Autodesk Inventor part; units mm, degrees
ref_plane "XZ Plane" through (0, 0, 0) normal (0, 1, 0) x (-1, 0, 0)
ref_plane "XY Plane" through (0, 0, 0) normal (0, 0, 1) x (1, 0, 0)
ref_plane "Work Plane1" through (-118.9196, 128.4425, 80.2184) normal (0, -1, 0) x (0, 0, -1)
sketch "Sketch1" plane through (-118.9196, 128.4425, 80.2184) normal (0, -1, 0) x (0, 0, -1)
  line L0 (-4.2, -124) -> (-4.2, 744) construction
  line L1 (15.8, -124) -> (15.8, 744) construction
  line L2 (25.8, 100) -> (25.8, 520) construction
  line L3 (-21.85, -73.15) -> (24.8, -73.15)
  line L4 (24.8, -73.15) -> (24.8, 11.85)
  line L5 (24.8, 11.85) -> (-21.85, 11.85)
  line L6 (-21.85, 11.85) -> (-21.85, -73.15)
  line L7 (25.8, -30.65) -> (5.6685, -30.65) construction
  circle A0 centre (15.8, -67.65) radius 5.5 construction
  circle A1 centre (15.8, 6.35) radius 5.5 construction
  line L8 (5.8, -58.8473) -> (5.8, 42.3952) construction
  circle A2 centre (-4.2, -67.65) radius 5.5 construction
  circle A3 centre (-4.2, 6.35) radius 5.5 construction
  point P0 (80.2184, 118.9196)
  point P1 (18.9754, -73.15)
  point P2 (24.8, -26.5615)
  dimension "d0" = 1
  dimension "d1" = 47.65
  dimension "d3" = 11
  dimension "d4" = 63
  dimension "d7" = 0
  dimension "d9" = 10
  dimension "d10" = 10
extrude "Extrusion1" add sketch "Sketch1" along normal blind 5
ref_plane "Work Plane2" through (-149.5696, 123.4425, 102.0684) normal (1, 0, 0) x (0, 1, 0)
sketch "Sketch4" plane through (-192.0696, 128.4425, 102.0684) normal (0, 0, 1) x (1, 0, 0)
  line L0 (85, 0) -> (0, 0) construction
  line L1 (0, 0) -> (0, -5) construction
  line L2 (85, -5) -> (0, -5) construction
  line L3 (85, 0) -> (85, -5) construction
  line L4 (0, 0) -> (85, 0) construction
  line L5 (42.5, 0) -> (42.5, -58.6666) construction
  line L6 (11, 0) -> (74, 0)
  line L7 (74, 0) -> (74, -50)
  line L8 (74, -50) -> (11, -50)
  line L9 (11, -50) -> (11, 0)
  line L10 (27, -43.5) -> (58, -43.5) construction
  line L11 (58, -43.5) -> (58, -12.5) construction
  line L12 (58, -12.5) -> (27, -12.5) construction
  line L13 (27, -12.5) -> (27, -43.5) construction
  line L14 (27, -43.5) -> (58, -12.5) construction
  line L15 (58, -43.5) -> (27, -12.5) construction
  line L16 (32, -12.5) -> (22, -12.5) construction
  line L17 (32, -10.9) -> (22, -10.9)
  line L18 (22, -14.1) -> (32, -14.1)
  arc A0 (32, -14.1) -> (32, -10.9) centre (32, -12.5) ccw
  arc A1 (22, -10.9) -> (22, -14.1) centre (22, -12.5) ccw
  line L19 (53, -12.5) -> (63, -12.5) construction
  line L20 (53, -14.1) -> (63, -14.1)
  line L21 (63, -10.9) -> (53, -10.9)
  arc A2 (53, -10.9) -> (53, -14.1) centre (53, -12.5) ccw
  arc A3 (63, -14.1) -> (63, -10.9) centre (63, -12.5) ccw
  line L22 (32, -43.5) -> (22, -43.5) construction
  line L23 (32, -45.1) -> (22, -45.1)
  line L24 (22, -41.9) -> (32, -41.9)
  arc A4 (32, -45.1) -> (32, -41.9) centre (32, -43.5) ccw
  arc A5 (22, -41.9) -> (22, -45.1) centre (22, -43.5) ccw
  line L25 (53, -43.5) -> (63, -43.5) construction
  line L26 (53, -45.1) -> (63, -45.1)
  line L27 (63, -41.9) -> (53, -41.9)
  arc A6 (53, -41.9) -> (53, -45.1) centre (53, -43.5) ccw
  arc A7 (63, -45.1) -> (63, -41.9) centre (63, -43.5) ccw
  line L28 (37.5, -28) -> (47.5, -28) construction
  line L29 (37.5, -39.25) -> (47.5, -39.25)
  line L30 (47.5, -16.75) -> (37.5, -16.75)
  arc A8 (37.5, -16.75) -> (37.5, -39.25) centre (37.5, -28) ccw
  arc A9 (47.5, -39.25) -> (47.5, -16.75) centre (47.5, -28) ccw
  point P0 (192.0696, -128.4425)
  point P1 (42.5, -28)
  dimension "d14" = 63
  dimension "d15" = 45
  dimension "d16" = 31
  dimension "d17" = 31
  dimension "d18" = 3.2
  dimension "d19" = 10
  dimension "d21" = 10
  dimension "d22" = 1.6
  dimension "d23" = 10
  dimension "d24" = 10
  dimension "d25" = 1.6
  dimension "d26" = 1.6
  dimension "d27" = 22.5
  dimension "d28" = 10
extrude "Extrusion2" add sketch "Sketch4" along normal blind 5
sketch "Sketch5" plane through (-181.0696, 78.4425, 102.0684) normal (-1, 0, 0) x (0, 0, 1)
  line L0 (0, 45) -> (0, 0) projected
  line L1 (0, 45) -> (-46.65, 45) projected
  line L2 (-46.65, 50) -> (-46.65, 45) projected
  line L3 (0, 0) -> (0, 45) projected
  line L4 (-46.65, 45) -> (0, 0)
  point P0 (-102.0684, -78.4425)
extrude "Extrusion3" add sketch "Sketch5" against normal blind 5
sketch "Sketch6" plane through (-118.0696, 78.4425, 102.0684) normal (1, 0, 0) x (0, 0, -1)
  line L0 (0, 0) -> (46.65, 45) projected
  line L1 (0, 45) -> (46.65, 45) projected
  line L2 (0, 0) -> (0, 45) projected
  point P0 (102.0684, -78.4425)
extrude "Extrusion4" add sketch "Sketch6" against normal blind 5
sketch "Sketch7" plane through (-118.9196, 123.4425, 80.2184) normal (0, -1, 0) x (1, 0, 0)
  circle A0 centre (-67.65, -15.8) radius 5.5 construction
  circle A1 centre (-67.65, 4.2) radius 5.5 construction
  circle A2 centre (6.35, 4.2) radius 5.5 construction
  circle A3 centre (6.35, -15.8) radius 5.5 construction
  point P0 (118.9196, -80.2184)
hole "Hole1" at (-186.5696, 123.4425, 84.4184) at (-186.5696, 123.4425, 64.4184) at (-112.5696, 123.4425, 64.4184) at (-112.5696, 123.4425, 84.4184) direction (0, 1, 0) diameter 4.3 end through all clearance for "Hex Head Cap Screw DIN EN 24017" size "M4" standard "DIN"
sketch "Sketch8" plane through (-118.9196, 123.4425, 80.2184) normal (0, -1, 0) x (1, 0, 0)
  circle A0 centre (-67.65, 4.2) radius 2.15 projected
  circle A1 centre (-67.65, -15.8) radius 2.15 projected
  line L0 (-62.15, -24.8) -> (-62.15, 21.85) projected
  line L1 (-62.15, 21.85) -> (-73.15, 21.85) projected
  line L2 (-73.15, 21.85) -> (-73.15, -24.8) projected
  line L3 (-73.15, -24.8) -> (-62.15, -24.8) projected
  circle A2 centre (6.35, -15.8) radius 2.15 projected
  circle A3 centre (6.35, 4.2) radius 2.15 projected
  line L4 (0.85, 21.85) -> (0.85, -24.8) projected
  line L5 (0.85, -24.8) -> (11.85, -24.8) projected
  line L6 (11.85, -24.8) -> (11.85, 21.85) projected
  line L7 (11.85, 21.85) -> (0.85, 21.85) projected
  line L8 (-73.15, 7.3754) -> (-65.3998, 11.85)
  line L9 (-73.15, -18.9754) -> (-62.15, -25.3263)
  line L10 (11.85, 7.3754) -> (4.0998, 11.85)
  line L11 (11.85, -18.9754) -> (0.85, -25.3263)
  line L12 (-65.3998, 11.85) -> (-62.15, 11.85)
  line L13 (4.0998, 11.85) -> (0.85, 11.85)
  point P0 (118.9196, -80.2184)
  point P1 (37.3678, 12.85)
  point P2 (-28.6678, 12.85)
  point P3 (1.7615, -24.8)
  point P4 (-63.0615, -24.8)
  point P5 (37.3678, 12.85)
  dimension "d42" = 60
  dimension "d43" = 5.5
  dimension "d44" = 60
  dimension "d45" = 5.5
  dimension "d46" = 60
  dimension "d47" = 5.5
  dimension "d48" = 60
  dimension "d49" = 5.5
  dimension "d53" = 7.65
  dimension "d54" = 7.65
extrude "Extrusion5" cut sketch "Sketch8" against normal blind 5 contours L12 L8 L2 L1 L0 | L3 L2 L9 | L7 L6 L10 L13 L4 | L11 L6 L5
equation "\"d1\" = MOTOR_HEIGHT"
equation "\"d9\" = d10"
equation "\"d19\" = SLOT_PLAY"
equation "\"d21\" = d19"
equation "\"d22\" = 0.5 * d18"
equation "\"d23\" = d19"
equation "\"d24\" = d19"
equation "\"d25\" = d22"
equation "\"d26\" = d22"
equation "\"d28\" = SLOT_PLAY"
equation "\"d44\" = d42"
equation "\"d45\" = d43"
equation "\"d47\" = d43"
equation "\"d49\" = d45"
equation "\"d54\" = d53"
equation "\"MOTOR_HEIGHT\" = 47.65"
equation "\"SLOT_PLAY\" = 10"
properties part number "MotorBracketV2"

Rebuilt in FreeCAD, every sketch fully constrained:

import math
import FreeCAD as App
import Part
import Sketcher
Q = App.Units.Quantity


def add_polygon(sketch, points):
    """Adds a closed chain of lines whose ends are joined by coincident constraints."""
    first, n = sketch.GeometryCount, len(points)
    for a, b in zip(points, points[1:] + points[:1]):
        sketch.addGeometry(Part.LineSegment(App.Vector(*a, 0), App.Vector(*b, 0)), False)
    for i in range(n):
        sketch.addConstraint(Sketcher.Constraint("Coincident", first + i, 2, first + (i + 1) % n, 1))

doc = App.newDocument("Part")
body = doc.addObject("PartDesign::Body", "Body")

# Sketch on XZ plane
sketch1 = doc.addObject("Sketcher::SketchObject", "Sketch")
body.addObject(sketch1)
sketch1.AttachmentSupport = (doc.XZ_Plane, [""])
sketch1.MapMode = "FlatFace"
sketch1.AttachmentOffset = App.Placement(App.Vector(0, 0, -128.4425), App.Rotation())
add_polygon(sketch1, [(-107, 102), (-192, 102), (-192, 55), (-107, 55)])  # lines 0-3
sketch1.addConstraint([
    Sketcher.Constraint("Horizontal", 0),
    Sketcher.Constraint("Vertical", 1),
    Sketcher.Constraint("Horizontal", 2),
    Sketcher.Constraint("Vertical", 3),
    Sketcher.Constraint("DistanceX", 0, 2, 0, 1, Q("85 mm")),
    Sketcher.Constraint("DistanceY", 1, 2, 1, 1, Q("46.65 mm")),
    Sketcher.Constraint("DistanceX", 0, 2, -1, 1, Q("192.0696 mm")),
    Sketcher.Constraint("DistanceY", -1, 1, 0, 2, Q("102.0684 mm")),
])
pad1 = doc.addObject("PartDesign::Pad", "Pad")
body.addObject(pad1)
pad1.Profile = sketch1
pad1.Length = 5

# Sketch on XY plane
sketch2 = doc.addObject("Sketcher::SketchObject", "Sketch001")
body.addObject(sketch2)
sketch2.AttachmentSupport = (doc.XY_Plane, [""])
sketch2.MapMode = "FlatFace"
sketch2.AttachmentOffset = App.Placement(App.Vector(0, 0, 102.0684), App.Rotation())
add_polygon(sketch2, [(-118.1, 128.4), (-181.1, 128.4), (-181.1, 78.4), (-118.1, 78.4)])  # lines 0-3
sketch2.addGeometry(Part.ArcOfCircle(Part.Circle(App.Vector(-160.1, 84.9, 0), App.Vector(0, 0, 1), 1.6), math.radians(-90), math.radians(90)), False)  # 4
sketch2.addGeometry(Part.LineSegment(App.Vector(-160.1, 83.3, 0), App.Vector(-170.1, 83.3, 0)), False)  # 5
sketch2.addGeometry(Part.ArcOfCircle(Part.Circle(App.Vector(-170.1, 84.9, 0), App.Vector(0, 0, 1), 1.6), math.radians(90), math.radians(270)), False)  # 6
sketch2.addGeometry(Part.LineSegment(App.Vector(-170.1, 86.5, 0), App.Vector(-160.1, 86.5, 0)), False)  # 7
sketch2.addGeometry(Part.LineSegment(App.Vector(-129.1, 83.3, 0), App.Vector(-139.1, 83.3, 0)), False)  # 8
sketch2.addGeometry(Part.ArcOfCircle(Part.Circle(App.Vector(-139.1, 84.9, 0), App.Vector(0, 0, 1), 1.6), math.radians(90), math.radians(270)), False)  # 9
sketch2.addGeometry(Part.LineSegment(App.Vector(-139.1, 86.5, 0), App.Vector(-129.1, 86.5, 0)), False)  # 10
sketch2.addGeometry(Part.ArcOfCircle(Part.Circle(App.Vector(-129.1, 84.9, 0), App.Vector(0, 0, 1), 1.6), math.radians(-90), math.radians(90)), False)  # 11
sketch2.addGeometry(Part.LineSegment(App.Vector(-144.6, 89.2, 0), App.Vector(-154.6, 89.2, 0)), False)  # 12
sketch2.addGeometry(Part.ArcOfCircle(Part.Circle(App.Vector(-154.6, 100.4, 0), App.Vector(0, 0, 1), 11.2), math.radians(90), math.radians(270)), False)  # 13
sketch2.addGeometry(Part.LineSegment(App.Vector(-154.6, 111.7, 0), App.Vector(-144.6, 111.7, 0)), False)  # 14
sketch2.addGeometry(Part.ArcOfCircle(Part.Circle(App.Vector(-144.6, 100.4, 0), App.Vector(0, 0, 1), 11.2), math.radians(-90), math.radians(90)), False)  # 15
sketch2.addGeometry(Part.LineSegment(App.Vector(-170.1, 117.5, 0), App.Vector(-160.1, 117.5, 0)), False)  # 16
sketch2.addGeometry(Part.ArcOfCircle(Part.Circle(App.Vector(-160.1, 115.9, 0), App.Vector(0, 0, 1), 1.6), math.radians(-90), math.radians(90)), False)  # 17
sketch2.addGeometry(Part.LineSegment(App.Vector(-160.1, 114.3, 0), App.Vector(-170.1, 114.3, 0)), False)  # 18
sketch2.addGeometry(Part.ArcOfCircle(Part.Circle(App.Vector(-170.1, 115.9, 0), App.Vector(0, 0, 1), 1.6), math.radians(90), math.radians(270)), False)  # 19
sketch2.addGeometry(Part.LineSegment(App.Vector(-129.1, 114.3, 0), App.Vector(-139.1, 114.3, 0)), False)  # 20
sketch2.addGeometry(Part.ArcOfCircle(Part.Circle(App.Vector(-139.1, 115.9, 0), App.Vector(0, 0, 1), 1.6), math.radians(90), math.radians(270)), False)  # 21
sketch2.addGeometry(Part.LineSegment(App.Vector(-139.1, 117.5, 0), App.Vector(-129.1, 117.5, 0)), False)  # 22
sketch2.addGeometry(Part.ArcOfCircle(Part.Circle(App.Vector(-129.1, 115.9, 0), App.Vector(0, 0, 1), 1.6), math.radians(-90), math.radians(90)), False)  # 23
sketch2.addConstraint([
    Sketcher.Constraint("Tangent", 4, 1, 5, 1),
    Sketcher.Constraint("Tangent", 5, 2, 6, 2),
    Sketcher.Constraint("Tangent", 6, 1, 7, 1),
    Sketcher.Constraint("Tangent", 7, 2, 4, 2),
    Sketcher.Constraint("Tangent", 8, 2, 9, 2),
    Sketcher.Constraint("Tangent", 9, 1, 10, 1),
    Sketcher.Constraint("Tangent", 10, 2, 11, 2),
    Sketcher.Constraint("Tangent", 11, 1, 8, 1),
    Sketcher.Constraint("Tangent", 12, 2, 13, 2),
    Sketcher.Constraint("Tangent", 13, 1, 14, 1),
    Sketcher.Constraint("Tangent", 14, 2, 15, 2),
    Sketcher.Constraint("Tangent", 15, 1, 12, 1),
    Sketcher.Constraint("Tangent", 16, 2, 17, 2),
    Sketcher.Constraint("Tangent", 17, 1, 18, 1),
    Sketcher.Constraint("Tangent", 18, 2, 19, 2),
    Sketcher.Constraint("Tangent", 19, 1, 16, 1),
    Sketcher.Constraint("Tangent", 20, 2, 21, 2),
    Sketcher.Constraint("Tangent", 21, 1, 22, 1),
    Sketcher.Constraint("Tangent", 22, 2, 23, 2),
    Sketcher.Constraint("Tangent", 23, 1, 20, 1),
    Sketcher.Constraint("Horizontal", 0),
    Sketcher.Constraint("Vertical", 1),
    Sketcher.Constraint("Horizontal", 2),
    Sketcher.Constraint("Vertical", 3),
    Sketcher.Constraint("Horizontal", 5),
    Sketcher.Constraint("Horizontal", 7),
    Sketcher.Constraint("Horizontal", 8),
    Sketcher.Constraint("Horizontal", 10),
    Sketcher.Constraint("Horizontal", 12),
    Sketcher.Constraint("Horizontal", 14),
    Sketcher.Constraint("Horizontal", 16),
    Sketcher.Constraint("Horizontal", 18),
    Sketcher.Constraint("Horizontal", 20),
    Sketcher.Constraint("Horizontal", 22),
    Sketcher.Constraint("Equal", 6, 9),
    Sketcher.Constraint("Equal", 11, 17),
    Sketcher.Constraint("Equal", 19, 21),
    Sketcher.Constraint("Horizontal", 6, 3, 9, 3),
    Sketcher.Constraint("Horizontal", 19, 3, 21, 3),
    Sketcher.Constraint("Vertical", 4, 3, 17, 3),
    Sketcher.Constraint("Vertical", 6, 3, 19, 3),
    Sketcher.Constraint("Vertical", 9, 3, 21, 3),
    Sketcher.Constraint("Vertical", 11, 3, 23, 3),
    Sketcher.Constraint("Equal", 7, 8),
    Sketcher.Constraint("Equal", 10, 12),
    Sketcher.Constraint("Radius", 4, Q("1.6 mm")),
    Sketcher.Constraint("DistanceX", 0, 2, 0, 1, Q("63 mm")),
    Sketcher.Constraint("DistanceX", 5, 2, 5, 1, Q("10 mm")),
    Sketcher.Constraint("Radius", 13, Q("11.25 mm")),
    Sketcher.Constraint("DistanceX", 6, 3, 9, 3, Q("31 mm")),
    Sketcher.Constraint("DistanceY", 4, 3, 17, 3, Q("31 mm")),
    Sketcher.Constraint("DistanceY", 1, 2, 1, 1, Q("50 mm")),
    Sketcher.Constraint("DistanceX", 0, 2, 19, 3, Q("11 mm")),
    Sketcher.Constraint("DistanceY", 13, 3, 0, 2, Q("28 mm")),
    Sketcher.Constraint("DistanceX", 4, 3, 13, 3, Q("5.5 mm")),
    Sketcher.Constraint("DistanceY", 4, 3, 13, 3, Q("15.5 mm")),
    Sketcher.Constraint("DistanceX", 4, 3, -1, 1, Q("160.0696 mm")),
    Sketcher.Constraint("DistanceY", -1, 1, 4, 3, Q("84.9425 mm")),
])
pad2 = doc.addObject("PartDesign::Pad", "Pad001")
body.addObject(pad2)
pad2.Profile = sketch2
pad2.Length = 5

# Sketch on YZ plane
sketch3 = doc.addObject("Sketcher::SketchObject", "Sketch002")
body.addObject(sketch3)
sketch3.AttachmentSupport = (doc.YZ_Plane, [""])
sketch3.MapMode = "FlatFace"
sketch3.AttachmentOffset = App.Placement(App.Vector(0, 0, -181.0696), App.Rotation())
add_polygon(sketch3, [(78, 102), (123, 102), (123, 55)])  # lines 0-2
sketch3.addConstraint([
    Sketcher.Constraint("Horizontal", 0),
    Sketcher.Constraint("Vertical", 1),
    Sketcher.Constraint("DistanceX", 0, 1, 0, 2, Q("45 mm")),
    Sketcher.Constraint("DistanceY", 1, 2, 1, 1, Q("46.65 mm")),
    Sketcher.Constraint("DistanceX", -1, 1, 0, 2, Q("123.4425 mm")),
    Sketcher.Constraint("DistanceY", -1, 1, 0, 2, Q("102.0684 mm")),
])
pad3 = doc.addObject("PartDesign::Pad", "Pad002")
body.addObject(pad3)
pad3.Profile = sketch3
pad3.Length = 5

# Sketch on YZ plane
sketch4 = doc.addObject("Sketcher::SketchObject", "Sketch003")
body.addObject(sketch4)
sketch4.AttachmentSupport = (doc.YZ_Plane, [""])
sketch4.MapMode = "FlatFace"
sketch4.AttachmentOffset = App.Placement(App.Vector(0, 0, -118.0696), App.Rotation())
add_polygon(sketch4, [(123, 102), (78, 102), (123, 55)])  # lines 0-2
sketch4.addConstraint([
    Sketcher.Constraint("Horizontal", 0),
    Sketcher.Constraint("Vertical", 2),
    Sketcher.Constraint("DistanceX", 0, 2, 0, 1, Q("45 mm")),
    Sketcher.Constraint("DistanceY", 2, 1, 2, 2, Q("46.65 mm")),
    Sketcher.Constraint("DistanceX", -1, 1, 0, 2, Q("78.4425 mm")),
    Sketcher.Constraint("DistanceY", -1, 1, 0, 2, Q("102.0684 mm")),
])
pad4 = doc.addObject("PartDesign::Pad", "Pad003")
body.addObject(pad4)
pad4.Profile = sketch4
pad4.Length = 5
pad4.Reversed = True

# Sketch on XZ plane
sketch5 = doc.addObject("Sketcher::SketchObject", "Sketch004")
body.addObject(sketch5)
sketch5.AttachmentSupport = (doc.XZ_Plane, [""])
sketch5.MapMode = "FlatFace"
sketch5.AttachmentOffset = App.Placement(App.Vector(0, 0, -123.4425), App.Rotation())
sketch5.addGeometry([
    Part.Circle(App.Vector(-186.6, 84.4, 0), App.Vector(0, 0, 1), 2.1),
    Part.Circle(App.Vector(-186.6, 64.4, 0), App.Vector(0, 0, 1), 2.1),
    Part.Circle(App.Vector(-112.6, 64.4, 0), App.Vector(0, 0, 1), 2.1),
    Part.Circle(App.Vector(-112.6, 84.4, 0), App.Vector(0, 0, 1), 2.1),
], False)
sketch5.addConstraint([
    Sketcher.Constraint("Equal", 0, 1),
    Sketcher.Constraint("Equal", 1, 2),
    Sketcher.Constraint("Equal", 2, 3),
    Sketcher.Constraint("Horizontal", 1, 3, 2, 3),
    Sketcher.Constraint("Horizontal", 0, 3, 3, 3),
    Sketcher.Constraint("Vertical", 0, 3, 1, 3),
    Sketcher.Constraint("Vertical", 2, 3, 3, 3),
    Sketcher.Constraint("Diameter", 0, Q("4.3 mm")),
    Sketcher.Constraint("DistanceY", 1, 3, 0, 3, Q("20 mm")),
    Sketcher.Constraint("DistanceX", 1, 3, 2, 3, Q("74 mm")),
    Sketcher.Constraint("DistanceX", 0, 3, -1, 1, Q("186.5696 mm")),
    Sketcher.Constraint("DistanceY", -1, 1, 0, 3, Q("84.4184 mm")),
])
doc.recompute()
hole = doc.addObject("PartDesign::Hole", "Hole")
body.addObject(hole)
hole.Profile = sketch5
hole.ThreadType = "None"
hole.Diameter = 4.3
hole.DepthType = "ThroughAll"

# Sketch on XZ plane
sketch6 = doc.addObject("Sketcher::SketchObject", "Sketch005")
body.addObject(sketch6)
sketch6.AttachmentSupport = (doc.XZ_Plane, [""])
sketch6.MapMode = "FlatFace"
sketch6.AttachmentOffset = App.Placement(App.Vector(0, 0, -123.4425), App.Rotation())
add_polygon(sketch6, [(-184.3, 92.1), (-181.1, 92.1), (-181.1, 102.1), (-192.1, 102.1), (-192.1, 87.6)])  # lines 0-4
add_polygon(sketch6, [(-192.1, 55.4), (-182, 55.4), (-192.1, 61.2)])  # lines 5-7
add_polygon(sketch6, [(-107.1, 102.1), (-118.1, 102.1), (-118.1, 92.1), (-114.8, 92.1), (-107.1, 87.6)])  # lines 8-12
add_polygon(sketch6, [(-107.1, 61.2), (-117.2, 55.4), (-107.1, 55.4)])  # lines 13-15
sketch6.addConstraint([
    Sketcher.Constraint("Horizontal", 0),
    Sketcher.Constraint("Vertical", 1),
    Sketcher.Constraint("Horizontal", 2),
    Sketcher.Constraint("Vertical", 3),
    Sketcher.Constraint("Horizontal", 5),
    Sketcher.Constraint("Vertical", 7),
    Sketcher.Constraint("Horizontal", 8),
    Sketcher.Constraint("Vertical", 9),
    Sketcher.Constraint("Horizontal", 10),
    Sketcher.Constraint("Vertical", 12),
    Sketcher.Constraint("Horizontal", 14),
    Sketcher.Constraint("Vertical", 15),
    Sketcher.Constraint("Parallel", 6, 11),
    Sketcher.Constraint("Parallel", 4, 13),
    Sketcher.Constraint("Horizontal", 2, 2, 8, 2),
    Sketcher.Constraint("Horizontal", 4, 2, 9, 2),
    Sketcher.Constraint("Horizontal", 3, 2, 11, 2),
    Sketcher.Constraint("Horizontal", 7, 2, 13, 2),
    Sketcher.Constraint("Horizontal", 6, 2, 15, 2),
    Sketcher.Constraint("Vertical", 3, 2, 6, 2),
    Sketcher.Constraint("Vertical", 12, 2, 14, 2),
    Sketcher.Constraint("Equal", 2, 8),
    Sketcher.Constraint("Equal", 0, 10),
    Sketcher.Constraint("DistanceX", 2, 2, 2, 1, Q("11 mm")),
    Sketcher.Constraint("DistanceY", 1, 1, 1, 2, Q("10 mm")),
    Sketcher.Constraint("Angle", 4, Q("30 deg")),
    Sketcher.Constraint("DistanceX", 1, 2, 8, 2, Q("63 mm")),
    Sketcher.Constraint("DistanceY", 5, 2, 0, 2, Q("36.65 mm")),
    Sketcher.Constraint("DistanceX", 0, 1, 0, 2, Q("3.2498 mm")),
    Sketcher.Constraint("DistanceX", 5, 1, 5, 2, Q("10.0884 mm")),
    Sketcher.Constraint("DistanceY", -1, 1, 6, 2, Q("61.243 mm")),
    Sketcher.Constraint("DistanceX", 13, 2, -1, 1, Q("117.158 mm")),
])
pocket1 = doc.addObject("PartDesign::Pocket", "Pocket")
body.addObject(pocket1)
pocket1.Profile = sketch6
pocket1.Length = 5

doc.recompute()
